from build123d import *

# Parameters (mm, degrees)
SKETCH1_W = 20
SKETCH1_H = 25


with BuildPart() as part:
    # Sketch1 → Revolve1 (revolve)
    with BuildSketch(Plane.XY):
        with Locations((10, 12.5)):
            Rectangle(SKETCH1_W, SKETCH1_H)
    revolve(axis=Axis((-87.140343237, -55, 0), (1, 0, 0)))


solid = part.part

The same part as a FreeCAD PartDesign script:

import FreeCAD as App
import Part
import Sketcher

V = App.Vector
Q = App.Units.Quantity


def add_polygon(sketch, points):
    """Adds a closed chain of lines whose ends are joined by coincident constraints."""
    first, n = sketch.GeometryCount, len(points)
    for a, b in zip(points, points[1:] + points[:1]):
        sketch.addGeometry(Part.LineSegment(App.Vector(*a, 0), App.Vector(*b, 0)), False)
    for i in range(n):
        sketch.addConstraint(Sketcher.Constraint("Coincident", first + i, 2, first + (i + 1) % n, 1))

doc = App.newDocument("Part")
body = doc.addObject("PartDesign::Body", "Body")

# Sketch on XY plane
sketch1 = body.newObject("Sketcher::SketchObject", "Sketch")
sketch1.AttachmentSupport = (doc.getObject("XY_Plane"), [""])
sketch1.MapMode = "FlatFace"
add_polygon(sketch1, [(0, 25), (0, 0), (20, 0), (20, 25)])  # lines 0-3
sketch1.addGeometry(Part.LineSegment(V(0, -55, 0), V(20, -55, 0)), True)  # axis
sketch1.addConstraint(Sketcher.Constraint("Vertical", 0))
sketch1.addConstraint(Sketcher.Constraint("Horizontal", 1))
sketch1.addConstraint(Sketcher.Constraint("Vertical", 2))
sketch1.addConstraint(Sketcher.Constraint("Horizontal", 3))
sketch1.addConstraint(Sketcher.Constraint("Horizontal", 4))
sketch1.addConstraint(Sketcher.Constraint("Coincident", 0, 2, -1, 1))
sketch1.addConstraint(Sketcher.Constraint("PointOnObject", 4, 1, -2))
sketch1.addConstraint(Sketcher.Constraint("Vertical", 2, 2, 4, 2))
sketch1.addConstraint(Sketcher.Constraint("DistanceX", 1, 1, 1, 2, Q("20 mm")))
sketch1.addConstraint(Sketcher.Constraint("DistanceY", 0, 2, 0, 1, Q("25 mm")))
sketch1.addConstraint(Sketcher.Constraint("DistanceY", 4, 1, -1, 1, Q("55 mm")))
revolution = body.newObject("PartDesign::Revolution", "Revolution")
revolution.Profile = sketch1
revolution.ReferenceAxis = (sketch1, ["Axis0"])
revolution.Angle = 360

doc.recompute()
